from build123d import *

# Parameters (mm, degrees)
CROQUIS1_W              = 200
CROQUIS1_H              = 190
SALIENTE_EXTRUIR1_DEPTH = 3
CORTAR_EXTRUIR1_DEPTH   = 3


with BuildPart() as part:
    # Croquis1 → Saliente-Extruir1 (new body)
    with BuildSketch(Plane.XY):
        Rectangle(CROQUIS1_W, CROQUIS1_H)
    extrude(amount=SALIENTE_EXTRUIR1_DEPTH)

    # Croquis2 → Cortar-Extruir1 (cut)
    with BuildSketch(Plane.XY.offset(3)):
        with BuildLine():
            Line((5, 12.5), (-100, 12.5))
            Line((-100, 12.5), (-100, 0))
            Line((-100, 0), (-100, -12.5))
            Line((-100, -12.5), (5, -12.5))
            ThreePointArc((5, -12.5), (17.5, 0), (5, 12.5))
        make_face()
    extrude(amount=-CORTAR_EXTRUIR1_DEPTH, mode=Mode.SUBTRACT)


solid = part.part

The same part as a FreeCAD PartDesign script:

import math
import FreeCAD as App
import Part
import Sketcher
from FreeCAD import Vector
Q = App.Units.Quantity


def add_polygon(sketch, points):
    """Adds a closed chain of lines whose ends are joined by coincident constraints."""
    first, n = sketch.GeometryCount, len(points)
    for a, b in zip(points, points[1:] + points[:1]):
        sketch.addGeometry(Part.LineSegment(App.Vector(*a, 0), App.Vector(*b, 0)), False)
    for i in range(n):
        sketch.addConstraint(Sketcher.Constraint("Coincident", first + i, 2, first + (i + 1) % n, 1))

doc = App.newDocument("Part")
body = doc.addObject("PartDesign::Body", "Body")

# Sketch on XY plane
sketch1 = body.newObject("Sketcher::SketchObject", "Sketch")
sketch1.AttachmentSupport = (doc.getObject("XY_Plane"), [""])
sketch1.MapMode = "FlatFace"
add_polygon(sketch1, [(-100, 95), (-100, -95), (100, -95), (100, 95)])  # lines 0-3
sketch1.addConstraint([
    Sketcher.Constraint("Vertical", 0),
    Sketcher.Constraint("Horizontal", 1),
    Sketcher.Constraint("Vertical", 2),
    Sketcher.Constraint("Horizontal", 3),
    Sketcher.Constraint("Symmetric", 0, 2, 2, 2, -1, 1),
    Sketcher.Constraint("DistanceX", 1, 1, 1, 2, Q("200 mm")),
    Sketcher.Constraint("DistanceY", 0, 2, 0, 1, Q("190 mm")),
])
pad1 = body.newObject("PartDesign::Pad", "Pad")
pad1.Profile = sketch1
pad1.Length = 3

# Sketch on XY plane
sketch2 = body.newObject("Sketcher::SketchObject", "Sketch001")
sketch2.AttachmentSupport = (doc.getObject("XY_Plane"), [""])
sketch2.MapMode = "FlatFace"
sketch2.AttachmentOffset = App.Placement(Vector(0, 0, 3), App.Rotation())
sketch2.addGeometry([
    Part.LineSegment(Vector(5, 12.5, 0), Vector(-100, 12.5, 0)),
    Part.LineSegment(Vector(-100, 12.5, 0), Vector(-100, -12.5, 0)),
    Part.LineSegment(Vector(-100, -12.5, 0), Vector(5, -12.5, 0)),
    Part.ArcOfCircle(Part.Circle(Vector(5, 0, 0), Vector(0, 0, 1), 12.5), math.radians(-90), math.radians(90)),
], False)
sketch2.addConstraint([
    Sketcher.Constraint("Coincident", 0, 2, 1, 1),
    Sketcher.Constraint("Coincident", 1, 2, 2, 1),
    Sketcher.Constraint("Tangent", 2, 2, 3, 1),
    Sketcher.Constraint("Tangent", 3, 2, 0, 1),
    Sketcher.Constraint("Horizontal", 0),
    Sketcher.Constraint("Vertical", 1),
    Sketcher.Constraint("Horizontal", 2),
    Sketcher.Constraint("PointOnObject", 3, 3, -1),
    Sketcher.Constraint("Radius", 3, Q("12.5 mm")),
    Sketcher.Constraint("DistanceX", 0, 2, 0, 1, Q("105 mm")),
    Sketcher.Constraint("DistanceX", -1, 1, 3, 3, Q("5 mm")),
])
pocket1 = body.newObject("PartDesign::Pocket", "Pocket")
pocket1.Profile = sketch2
pocket1.Length = 3

doc.recompute()
